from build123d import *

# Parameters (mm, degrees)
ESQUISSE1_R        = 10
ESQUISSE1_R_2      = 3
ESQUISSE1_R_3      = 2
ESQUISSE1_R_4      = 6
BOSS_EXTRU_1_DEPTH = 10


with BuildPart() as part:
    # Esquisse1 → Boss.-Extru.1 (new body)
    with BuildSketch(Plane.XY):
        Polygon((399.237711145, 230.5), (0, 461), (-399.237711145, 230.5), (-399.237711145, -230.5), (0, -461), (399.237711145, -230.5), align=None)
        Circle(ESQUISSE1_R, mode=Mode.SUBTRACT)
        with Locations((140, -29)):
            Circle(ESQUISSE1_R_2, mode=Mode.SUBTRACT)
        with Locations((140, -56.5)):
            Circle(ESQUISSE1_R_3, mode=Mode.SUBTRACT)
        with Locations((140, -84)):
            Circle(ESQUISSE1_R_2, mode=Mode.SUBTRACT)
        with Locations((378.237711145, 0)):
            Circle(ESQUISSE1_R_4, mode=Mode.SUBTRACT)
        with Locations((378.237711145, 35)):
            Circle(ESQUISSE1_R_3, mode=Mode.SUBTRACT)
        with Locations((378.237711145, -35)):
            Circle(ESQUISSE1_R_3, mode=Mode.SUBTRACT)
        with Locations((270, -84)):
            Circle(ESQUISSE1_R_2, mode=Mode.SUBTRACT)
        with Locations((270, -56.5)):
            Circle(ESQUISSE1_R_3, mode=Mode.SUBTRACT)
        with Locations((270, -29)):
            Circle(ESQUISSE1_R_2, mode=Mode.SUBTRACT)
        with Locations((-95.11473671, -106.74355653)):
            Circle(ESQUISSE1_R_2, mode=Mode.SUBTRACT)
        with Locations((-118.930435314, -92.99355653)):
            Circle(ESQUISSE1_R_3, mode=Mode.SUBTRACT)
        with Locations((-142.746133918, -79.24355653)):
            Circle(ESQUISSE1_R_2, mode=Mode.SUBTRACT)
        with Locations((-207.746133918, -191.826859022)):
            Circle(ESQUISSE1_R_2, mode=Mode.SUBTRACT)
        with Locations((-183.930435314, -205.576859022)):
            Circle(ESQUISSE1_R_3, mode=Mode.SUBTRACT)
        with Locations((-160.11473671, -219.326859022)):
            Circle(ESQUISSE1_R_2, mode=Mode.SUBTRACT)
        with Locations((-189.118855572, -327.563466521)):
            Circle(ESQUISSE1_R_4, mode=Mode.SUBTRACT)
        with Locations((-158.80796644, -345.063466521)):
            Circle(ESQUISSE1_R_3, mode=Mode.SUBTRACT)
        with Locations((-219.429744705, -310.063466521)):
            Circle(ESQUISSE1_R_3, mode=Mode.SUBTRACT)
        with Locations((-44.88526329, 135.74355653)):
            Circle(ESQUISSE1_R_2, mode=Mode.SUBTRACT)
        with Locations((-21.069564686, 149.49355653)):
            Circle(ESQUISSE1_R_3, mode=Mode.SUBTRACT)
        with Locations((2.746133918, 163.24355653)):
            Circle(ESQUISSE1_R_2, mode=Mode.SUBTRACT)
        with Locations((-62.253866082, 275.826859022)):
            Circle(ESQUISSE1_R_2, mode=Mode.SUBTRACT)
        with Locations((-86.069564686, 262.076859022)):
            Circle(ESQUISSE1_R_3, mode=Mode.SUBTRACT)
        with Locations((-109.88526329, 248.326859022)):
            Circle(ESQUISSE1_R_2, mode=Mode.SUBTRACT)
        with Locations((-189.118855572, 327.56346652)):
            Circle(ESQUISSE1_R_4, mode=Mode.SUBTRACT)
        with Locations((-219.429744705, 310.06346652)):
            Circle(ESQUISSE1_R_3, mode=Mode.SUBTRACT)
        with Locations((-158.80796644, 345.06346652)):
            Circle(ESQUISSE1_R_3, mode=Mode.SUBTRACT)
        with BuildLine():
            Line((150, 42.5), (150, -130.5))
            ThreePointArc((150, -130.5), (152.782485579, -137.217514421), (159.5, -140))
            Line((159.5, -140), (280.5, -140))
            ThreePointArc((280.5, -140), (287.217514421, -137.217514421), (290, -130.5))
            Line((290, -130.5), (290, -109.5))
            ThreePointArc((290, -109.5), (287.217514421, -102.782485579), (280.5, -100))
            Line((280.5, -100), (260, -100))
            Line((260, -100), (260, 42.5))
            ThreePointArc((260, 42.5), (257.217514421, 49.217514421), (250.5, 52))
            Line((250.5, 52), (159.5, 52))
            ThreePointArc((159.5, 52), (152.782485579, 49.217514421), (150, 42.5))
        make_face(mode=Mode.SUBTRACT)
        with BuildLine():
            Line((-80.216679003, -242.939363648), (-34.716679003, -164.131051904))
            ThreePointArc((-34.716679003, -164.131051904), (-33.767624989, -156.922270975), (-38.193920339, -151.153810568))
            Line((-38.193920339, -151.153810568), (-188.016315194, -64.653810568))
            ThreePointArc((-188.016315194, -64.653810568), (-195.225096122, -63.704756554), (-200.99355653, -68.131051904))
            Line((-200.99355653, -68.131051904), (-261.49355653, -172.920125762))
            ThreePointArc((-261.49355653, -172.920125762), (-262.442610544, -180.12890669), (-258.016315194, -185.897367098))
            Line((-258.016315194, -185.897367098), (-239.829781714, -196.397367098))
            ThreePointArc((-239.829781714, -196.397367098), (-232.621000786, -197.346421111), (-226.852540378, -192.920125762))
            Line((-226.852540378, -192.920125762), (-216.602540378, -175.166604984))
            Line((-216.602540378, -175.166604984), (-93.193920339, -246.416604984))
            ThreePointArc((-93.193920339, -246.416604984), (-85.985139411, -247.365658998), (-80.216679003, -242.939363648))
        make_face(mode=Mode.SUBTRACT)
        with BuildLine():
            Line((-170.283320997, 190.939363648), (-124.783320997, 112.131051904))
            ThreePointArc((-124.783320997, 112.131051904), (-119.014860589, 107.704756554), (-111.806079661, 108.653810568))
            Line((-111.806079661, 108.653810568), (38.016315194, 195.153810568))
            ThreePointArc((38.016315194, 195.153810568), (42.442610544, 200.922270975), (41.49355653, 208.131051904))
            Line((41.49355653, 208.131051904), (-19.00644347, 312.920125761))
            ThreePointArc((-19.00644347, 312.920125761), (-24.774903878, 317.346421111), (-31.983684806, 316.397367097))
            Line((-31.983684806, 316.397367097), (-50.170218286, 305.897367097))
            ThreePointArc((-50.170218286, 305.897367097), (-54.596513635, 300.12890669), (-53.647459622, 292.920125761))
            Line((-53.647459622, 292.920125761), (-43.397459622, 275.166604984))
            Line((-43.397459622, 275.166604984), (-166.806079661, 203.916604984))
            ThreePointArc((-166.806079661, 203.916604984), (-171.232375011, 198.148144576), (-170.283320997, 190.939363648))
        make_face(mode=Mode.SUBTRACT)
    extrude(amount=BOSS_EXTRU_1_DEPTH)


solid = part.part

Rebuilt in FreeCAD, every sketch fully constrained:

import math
import FreeCAD as App
import Part
import Sketcher
from FreeCAD import Vector
Q = App.Units.Quantity

doc = App.newDocument("Part")
body = doc.addObject("PartDesign::Body", "Body")

# Sketch on XY plane
sketch1 = body.newObject("Sketcher::SketchObject", "Sketch")
sketch1.AttachmentSupport = (doc.getObject("XY_Plane"), [""])
sketch1.MapMode = "FlatFace"
sketch1.addGeometry([
    Part.LineSegment(Vector(399.237711, 230.5, 0), Vector(0, 461, 0)),  # 0
    Part.LineSegment(Vector(0, 461, 0), Vector(-399.237711, 230.5, 0)),  # 1
    Part.LineSegment(Vector(-399.237711, 230.5, 0), Vector(-399.237711, -230.5, 0)),  # 2
    Part.LineSegment(Vector(-399.237711, -230.5, 0), Vector(0, -461, 0)),  # 3
    Part.LineSegment(Vector(0, -461, 0), Vector(399.237711, -230.5, 0)),  # 4
    Part.LineSegment(Vector(399.237711, -230.5, 0), Vector(399.237711, 230.5, 0)),  # 5
    Part.Circle(Vector(-189.118856, -327.563467, 0), Vector(0, 0, 1), 6),  # 6
    Part.Circle(Vector(-219.429745, -310.063467, 0), Vector(0, 0, 1), 2),  # 7
    Part.Circle(Vector(-158.807966, -345.063467, 0), Vector(0, 0, 1), 2),  # 8
    Part.Circle(Vector(-183.930435, -205.576859, 0), Vector(0, 0, 1), 2),  # 9
    Part.Circle(Vector(-207.746134, -191.826859, 0), Vector(0, 0, 1), 3),  # 10
    Part.Circle(Vector(-160.114737, -219.326859, 0), Vector(0, 0, 1), 3),  # 11
    Part.LineSegment(Vector(-34.716679, -164.131052, 0), Vector(-80.216679, -242.939364, 0)),  # 12
    Part.ArcOfCircle(Part.Circle(Vector(-88.44392, -238.189364, 0), Vector(0, 0, 1), 9.5), math.radians(-120), math.radians(-30)),  # 13
    Part.LineSegment(Vector(-93.19392, -246.416605, 0), Vector(-216.60254, -175.166605, 0)),  # 14
    Part.LineSegment(Vector(-216.60254, -175.166605, 0), Vector(-226.85254, -192.920126, 0)),  # 15
    Part.ArcOfCircle(Part.Circle(Vector(-235.079782, -188.170126, 0), Vector(0, 0, 1), 9.5), math.radians(-120), math.radians(-30)),  # 16
    Part.LineSegment(Vector(-239.829782, -196.397367, 0), Vector(-258.016315, -185.897367, 0)),  # 17
    Part.ArcOfCircle(Part.Circle(Vector(-253.266315, -177.670126, 0), Vector(0, 0, 1), 9.5), math.radians(150), math.radians(240)),  # 18
    Part.LineSegment(Vector(-261.493557, -172.920126, 0), Vector(-200.993557, -68.131052, 0)),  # 19
    Part.ArcOfCircle(Part.Circle(Vector(-192.766315, -72.881052, 0), Vector(0, 0, 1), 9.5), math.radians(60), math.radians(150)),  # 20
    Part.LineSegment(Vector(-188.016315, -64.653811, 0), Vector(-38.19392, -151.153811, 0)),  # 21
    Part.ArcOfCircle(Part.Circle(Vector(-42.94392, -159.381052, 0), Vector(0, 0, 1), 9.5), math.radians(-30), math.radians(60)),  # 22
    Part.Circle(Vector(-118.930435, -92.993557, 0), Vector(0, 0, 1), 2),  # 23
    Part.Circle(Vector(-142.746134, -79.243557, 0), Vector(0, 0, 1), 3),  # 24
    Part.Circle(Vector(-95.114737, -106.743557, 0), Vector(0, 0, 1), 3),  # 25
    Part.Circle(Vector(140, -84, 0), Vector(0, 0, 1), 3),  # 26
    Part.Circle(Vector(140, -56.5, 0), Vector(0, 0, 1), 2),  # 27
    Part.Circle(Vector(140, -29, 0), Vector(0, 0, 1), 3),  # 28
    Part.LineSegment(Vector(150, -130.5, 0), Vector(150, 42.5, 0)),  # 29
    Part.ArcOfCircle(Part.Circle(Vector(159.5, 42.5, 0), Vector(0, 0, 1), 9.5), math.radians(90), math.radians(180)),  # 30
    Part.LineSegment(Vector(159.5, 52, 0), Vector(250.5, 52, 0)),  # 31
    Part.ArcOfCircle(Part.Circle(Vector(250.5, 42.5, 0), Vector(0, 0, 1), 9.5), math.radians(0), math.radians(90)),  # 32
    Part.LineSegment(Vector(260, 42.5, 0), Vector(260, -100, 0)),  # 33
    Part.LineSegment(Vector(260, -100, 0), Vector(280.5, -100, 0)),  # 34
    Part.ArcOfCircle(Part.Circle(Vector(280.5, -109.5, 0), Vector(0, 0, 1), 9.5), math.radians(0), math.radians(90)),  # 35
    Part.LineSegment(Vector(290, -109.5, 0), Vector(290, -130.5, 0)),  # 36
    Part.ArcOfCircle(Part.Circle(Vector(280.5, -130.5, 0), Vector(0, 0, 1), 9.5), math.radians(-90), math.radians(0)),  # 37
    Part.LineSegment(Vector(280.5, -140, 0), Vector(159.5, -140, 0)),  # 38
    Part.ArcOfCircle(Part.Circle(Vector(159.5, -130.5, 0), Vector(0, 0, 1), 9.5), math.radians(-180), math.radians(-90)),  # 39
    Part.Circle(Vector(270, -84, 0), Vector(0, 0, 1), 3),  # 40
    Part.Circle(Vector(270, -56.5, 0), Vector(0, 0, 1), 2),  # 41
    Part.Circle(Vector(270, -29, 0), Vector(0, 0, 1), 3),  # 42
    Part.Circle(Vector(378.237711, -35, 0), Vector(0, 0, 1), 2),  # 43
    Part.Circle(Vector(0, 0, 0), Vector(0, 0, 1), 10),  # 44
    Part.Circle(Vector(-44.885263, 135.743557, 0), Vector(0, 0, 1), 3),  # 45
    Part.Circle(Vector(-21.069565, 149.493557, 0), Vector(0, 0, 1), 2),  # 46
    Part.Circle(Vector(2.746134, 163.243557, 0), Vector(0, 0, 1), 3),  # 47
    Part.Circle(Vector(-109.885263, 248.326859, 0), Vector(0, 0, 1), 3),  # 48
    Part.Circle(Vector(-219.429745, 310.063467, 0), Vector(0, 0, 1), 2),  # 49
    Part.Circle(Vector(-189.118856, 327.563467, 0), Vector(0, 0, 1), 6),  # 50
    Part.Circle(Vector(-158.807966, 345.063467, 0), Vector(0, 0, 1), 2),  # 51
    Part.LineSegment(Vector(-124.783321, 112.131052, 0), Vector(-170.283321, 190.939364, 0)),  # 52
    Part.ArcOfCircle(Part.Circle(Vector(-162.05608, 195.689364, 0), Vector(0, 0, 1), 9.5), math.radians(120), math.radians(210)),  # 53
    Part.LineSegment(Vector(-166.80608, 203.916605, 0), Vector(-43.39746, 275.166605, 0)),  # 54
    Part.LineSegment(Vector(-43.39746, 275.166605, 0), Vector(-53.64746, 292.920126, 0)),  # 55
    Part.ArcOfCircle(Part.Circle(Vector(-45.420218, 297.670126, 0), Vector(0, 0, 1), 9.5), math.radians(120), math.radians(210)),  # 56
    Part.LineSegment(Vector(-50.170218, 305.897367, 0), Vector(-31.983685, 316.397367, 0)),  # 57
    Part.ArcOfCircle(Part.Circle(Vector(-27.233685, 308.170126, 0), Vector(0, 0, 1), 9.5), math.radians(30), math.radians(120)),  # 58
    Part.LineSegment(Vector(-19.006443, 312.920126, 0), Vector(41.493557, 208.131052, 0)),  # 59
    Part.ArcOfCircle(Part.Circle(Vector(33.266315, 203.381052, 0), Vector(0, 0, 1), 9.5), math.radians(-60), math.radians(30)),  # 60
    Part.LineSegment(Vector(38.016315, 195.153811, 0), Vector(-111.80608, 108.653811, 0)),  # 61
    Part.ArcOfCircle(Part.Circle(Vector(-116.55608, 116.881052, 0), Vector(0, 0, 1), 9.5), math.radians(-150), math.radians(-60)),  # 62
    Part.Circle(Vector(-86.069565, 262.076859, 0), Vector(0, 0, 1), 2),  # 63
    Part.Circle(Vector(-62.253866, 275.826859, 0), Vector(0, 0, 1), 3),  # 64
    Part.Circle(Vector(378.237711, 0, 0), Vector(0, 0, 1), 6),  # 65
    Part.Circle(Vector(378.237711, 35, 0), Vector(0, 0, 1), 2),  # 66
], False)
sketch1.addConstraint([
    Sketcher.Constraint("Coincident", 0, 2, 1, 1),
    Sketcher.Constraint("Coincident", 1, 2, 2, 1),
    Sketcher.Constraint("Coincident", 2, 2, 3, 1),
    Sketcher.Constraint("Coincident", 3, 2, 4, 1),
    Sketcher.Constraint("Coincident", 4, 2, 5, 1),
    Sketcher.Constraint("Coincident", 5, 2, 0, 1),
    Sketcher.Constraint("Tangent", 12, 2, 13, 2),
    Sketcher.Constraint("Tangent", 13, 1, 14, 1),
    Sketcher.Constraint("Coincident", 14, 2, 15, 1),
    Sketcher.Constraint("Tangent", 15, 2, 16, 2),
    Sketcher.Constraint("Tangent", 16, 1, 17, 1),
    Sketcher.Constraint("Tangent", 17, 2, 18, 2),
    Sketcher.Constraint("Tangent", 18, 1, 19, 1),
    Sketcher.Constraint("Tangent", 19, 2, 20, 2),
    Sketcher.Constraint("Tangent", 20, 1, 21, 1),
    Sketcher.Constraint("Tangent", 21, 2, 22, 2),
    Sketcher.Constraint("Tangent", 22, 1, 12, 1),
    Sketcher.Constraint("Tangent", 29, 2, 30, 2),
    Sketcher.Constraint("Tangent", 30, 1, 31, 1),
    Sketcher.Constraint("Tangent", 31, 2, 32, 2),
    Sketcher.Constraint("Tangent", 32, 1, 33, 1),
    Sketcher.Constraint("Coincident", 33, 2, 34, 1),
    Sketcher.Constraint("Tangent", 34, 2, 35, 2),
    Sketcher.Constraint("Tangent", 35, 1, 36, 1),
    Sketcher.Constraint("Tangent", 36, 2, 37, 2),
    Sketcher.Constraint("Tangent", 37, 1, 38, 1),
    Sketcher.Constraint("Tangent", 38, 2, 39, 2),
    Sketcher.Constraint("Tangent", 39, 1, 29, 1),
    Sketcher.Constraint("Tangent", 52, 2, 53, 2),
    Sketcher.Constraint("Tangent", 53, 1, 54, 1),
    Sketcher.Constraint("Coincident", 54, 2, 55, 1),
    Sketcher.Constraint("Tangent", 55, 2, 56, 2),
    Sketcher.Constraint("Tangent", 56, 1, 57, 1),
    Sketcher.Constraint("Tangent", 57, 2, 58, 2),
    Sketcher.Constraint("Tangent", 58, 1, 59, 1),
    Sketcher.Constraint("Tangent", 59, 2, 60, 2),
    Sketcher.Constraint("Tangent", 60, 1, 61, 1),
    Sketcher.Constraint("Tangent", 61, 2, 62, 2),
    Sketcher.Constraint("Tangent", 62, 1, 52, 1),
    Sketcher.Constraint("Vertical", 2),
    Sketcher.Constraint("Vertical", 5),
    Sketcher.Constraint("Vertical", 29),
    Sketcher.Constraint("Horizontal", 31),
    Sketcher.Constraint("Vertical", 33),
    Sketcher.Constraint("Horizontal", 34),
    Sketcher.Constraint("Vertical", 36),
    Sketcher.Constraint("Horizontal", 38),
    Sketcher.Constraint("Coincident", 44, 3, -1, 1),
    Sketcher.Constraint("Equal", 7, 8),
    Sketcher.Constraint("Equal", 8, 9),
    Sketcher.Constraint("Equal", 10, 11),
    Sketcher.Constraint("Equal", 13, 16),
    Sketcher.Constraint("Equal", 16, 18),
    Sketcher.Constraint("Equal", 18, 20),
    Sketcher.Constraint("Equal", 20, 22),
    Sketcher.Constraint("Equal", 9, 23),
    Sketcher.Constraint("Equal", 11, 24),
    Sketcher.Constraint("Equal", 24, 25),
    Sketcher.Constraint("Equal", 25, 26),
    Sketcher.Constraint("Equal", 23, 27),
    Sketcher.Constraint("Equal", 26, 28),
    Sketcher.Constraint("Equal", 22, 30),
    Sketcher.Constraint("Equal", 30, 32),
    Sketcher.Constraint("Equal", 32, 35),
    Sketcher.Constraint("Equal", 35, 37),
    Sketcher.Constraint("Equal", 37, 39),
    Sketcher.Constraint("Equal", 28, 40),
    Sketcher.Constraint("Equal", 27, 41),
    Sketcher.Constraint("Equal", 40, 42),
    Sketcher.Constraint("Equal", 41, 43),
    Sketcher.Constraint("Equal", 42, 45),
    Sketcher.Constraint("Equal", 43, 46),
    Sketcher.Constraint("Equal", 45, 47),
    Sketcher.Constraint("Equal", 47, 48),
    Sketcher.Constraint("Equal", 46, 49),
    Sketcher.Constraint("Equal", 6, 50),
    Sketcher.Constraint("Equal", 49, 51),
    Sketcher.Constraint("Equal", 39, 53),
    Sketcher.Constraint("Equal", 53, 56),
    Sketcher.Constraint("Equal", 56, 58),
    Sketcher.Constraint("Equal", 58, 60),
    Sketcher.Constraint("Equal", 60, 62),
    Sketcher.Constraint("Equal", 51, 63),
    Sketcher.Constraint("Equal", 48, 64),
    Sketcher.Constraint("Equal", 50, 65),
    Sketcher.Constraint("Equal", 63, 66),
    Sketcher.Constraint("Symmetric", 0, 2, 3, 2, -1, 1),
    Sketcher.Constraint("Symmetric", 1, 2, 4, 2, -1, 1),
    Sketcher.Constraint("Symmetric", 7, 3, 49, 3, -1),
    Sketcher.Constraint("Symmetric", 6, 3, 50, 3, -1),
    Sketcher.Constraint("Symmetric", 8, 3, 51, 3, -1),
    Sketcher.Constraint("Symmetric", 43, 3, 66, 3, -1),
    Sketcher.Constraint("PointOnObject", 65, 3, -1),
    Sketcher.Constraint("PointOnObject", 0, 2, -2),
    Sketcher.Constraint("Parallel", 0, 3),
    Sketcher.Constraint("Perpendicular", 3, 12),
    Sketcher.Constraint("Perpendicular", 12, 14),
    Sketcher.Constraint("Perpendicular", 14, 15),
    Sketcher.Constraint("Perpendicular", 15, 17),
    Sketcher.Constraint("Perpendicular", 17, 19),
    Sketcher.Constraint("Perpendicular", 19, 21),
    Sketcher.Constraint("Perpendicular", 4, 52),
    Sketcher.Constraint("Perpendicular", 52, 54),
    Sketcher.Constraint("Perpendicular", 54, 55),
    Sketcher.Constraint("Perpendicular", 55, 57),
    Sketcher.Constraint("Perpendicular", 57, 59),
    Sketcher.Constraint("Perpendicular", 59, 61),
    Sketcher.Constraint("Horizontal", 26, 3, 40, 3),
    Sketcher.Constraint("Horizontal", 27, 3, 41, 3),
    Sketcher.Constraint("Horizontal", 28, 3, 42, 3),
    Sketcher.Constraint("Horizontal", 2, 2, 4, 2),
    Sketcher.Constraint("Vertical", 26, 3, 27, 3),
    Sketcher.Constraint("Vertical", 27, 3, 28, 3),
    Sketcher.Constraint("Vertical", 40, 3, 41, 3),
    Sketcher.Constraint("Vertical", 41, 3, 42, 3),
    Sketcher.Constraint("Vertical", 43, 3, 65, 3),
    Sketcher.Constraint("Equal", 12, 52),
    Sketcher.Constraint("Equal", 14, 54),
    Sketcher.Constraint("Equal", 15, 55),
    Sketcher.Constraint("Equal", 17, 57),
    Sketcher.Constraint("Diameter", 6, Q("12 mm")),
    Sketcher.Constraint("Diameter", 7, Q("4 mm")),
    Sketcher.Constraint("Diameter", 10, Q("6 mm")),
    Sketcher.Constraint("Diameter", 44, Q("20 mm")),
    Sketcher.Constraint("Radius", 13, Q("9.5 mm")),
    Sketcher.Constraint("DistanceX", 31, 1, 31, 2, Q("91 mm")),
    Sketcher.Constraint("DistanceX", 38, 2, 38, 1, Q("121 mm")),
    Sketcher.Constraint("DistanceY", 2, 2, 2, 1, Q("461 mm")),
    Sketcher.Constraint("DistanceY", 29, 1, 29, 2, Q("173 mm")),
    Sketcher.Constraint("DistanceY", 36, 2, 36, 1, Q("21 mm")),
    Sketcher.Constraint("Angle", 0, Q("150 deg")),
    Sketcher.Constraint("Distance", 0, Q("461 mm")),
    Sketcher.Constraint("Distance", 12, Q("91 mm")),
    Sketcher.Constraint("Distance", 17, Q("21 mm")),
    Sketcher.Constraint("Distance", 19, Q("121 mm")),
    Sketcher.Constraint("Distance", 21, Q("173 mm")),
    Sketcher.Constraint("DistanceX", -1, 1, 26, 3, Q("140 mm")),
    Sketcher.Constraint("DistanceY", 26, 3, -1, 1, Q("84 mm")),
    Sketcher.Constraint("DistanceY", 28, 3, -1, 1, Q("29 mm")),
    Sketcher.Constraint("DistanceX", -1, 1, 40, 3, Q("270 mm")),
    Sketcher.Constraint("DistanceY", 43, 3, -1, 1, Q("35 mm")),
    Sketcher.Constraint("DistanceX", -1, 1, 29, 2, Q("150 mm")),
    Sketcher.Constraint("DistanceY", -1, 1, 30, 1, Q("52 mm")),
    Sketcher.Constraint("DistanceY", 27, 3, -1, 1, Q("56.5 mm")),
    Sketcher.Constraint("DistanceY", 9, 3, -1, 1, Q("205.576859 mm")),
    Sketcher.Constraint("DistanceY", 10, 3, -1, 1, Q("191.826859 mm")),
    Sketcher.Constraint("DistanceY", 11, 3, -1, 1, Q("219.326859 mm")),
    Sketcher.Constraint("DistanceX", 13, 3, -1, 1, Q("88.44392 mm")),
    Sketcher.Constraint("DistanceY", 20, 3, -1, 1, Q("72.881052 mm")),
    Sketcher.Constraint("DistanceX", -1, 1, 43, 3, Q("378.237711 mm")),
    Sketcher.Constraint("DistanceY", -1, 1, 48, 3, Q("248.326859 mm")),
    Sketcher.Constraint("DistanceX", 53, 3, -1, 1, Q("162.05608 mm")),
    Sketcher.Constraint("DistanceY", -1, 1, 60, 3, Q("203.381052 mm")),
    Sketcher.Constraint("DistanceY", -1, 1, 63, 3, Q("262.076859 mm")),
    Sketcher.Constraint("DistanceY", -1, 1, 64, 3, Q("275.826859 mm")),
    Sketcher.Constraint("DistanceX", 6, 3, -1, 1, Q("189.118856 mm")),
    Sketcher.Constraint("DistanceY", 6, 3, -1, 1, Q("327.563467 mm")),
    Sketcher.Constraint("DistanceX", 7, 3, -1, 1, Q("219.429745 mm")),
    Sketcher.Constraint("DistanceY", 7, 3, -1, 1, Q("310.063467 mm")),
    Sketcher.Constraint("DistanceX", 8, 3, -1, 1, Q("158.807966 mm")),
    Sketcher.Constraint("DistanceY", 8, 3, -1, 1, Q("345.063467 mm")),
    Sketcher.Constraint("DistanceX", 9, 3, -1, 1, Q("183.930435 mm")),
    Sketcher.Constraint("DistanceX", 10, 3, -1, 1, Q("207.746134 mm")),
    Sketcher.Constraint("DistanceX", 11, 3, -1, 1, Q("160.114737 mm")),
    Sketcher.Constraint("DistanceX", 23, 3, -1, 1, Q("118.930435 mm")),
    Sketcher.Constraint("DistanceY", 23, 3, -1, 1, Q("92.993557 mm")),
    Sketcher.Constraint("DistanceX", 24, 3, -1, 1, Q("142.746134 mm")),
    Sketcher.Constraint("DistanceY", 24, 3, -1, 1, Q("79.243557 mm")),
    Sketcher.Constraint("DistanceX", 25, 3, -1, 1, Q("95.114737 mm")),
    Sketcher.Constraint("DistanceY", 25, 3, -1, 1, Q("106.743557 mm")),
    Sketcher.Constraint("DistanceX", 45, 3, -1, 1, Q("44.885263 mm")),
    Sketcher.Constraint("DistanceY", -1, 1, 45, 3, Q("135.743557 mm")),
    Sketcher.Constraint("DistanceX", 46, 3, -1, 1, Q("21.069565 mm")),
    Sketcher.Constraint("DistanceY", -1, 1, 46, 3, Q("149.493557 mm")),
    Sketcher.Constraint("DistanceX", -1, 1, 47, 3, Q("2.746134 mm")),
    Sketcher.Constraint("DistanceY", -1, 1, 47, 3, Q("163.243557 mm")),
    Sketcher.Constraint("DistanceX", 48, 3, -1, 1, Q("109.885263 mm")),
    Sketcher.Constraint("DistanceX", 63, 3, -1, 1, Q("86.069565 mm")),
    Sketcher.Constraint("DistanceX", 64, 3, -1, 1, Q("62.253866 mm")),
])
pad1 = body.newObject("PartDesign::Pad", "Pad")
pad1.Profile = sketch1
pad1.Length = 10

doc.recompute()
